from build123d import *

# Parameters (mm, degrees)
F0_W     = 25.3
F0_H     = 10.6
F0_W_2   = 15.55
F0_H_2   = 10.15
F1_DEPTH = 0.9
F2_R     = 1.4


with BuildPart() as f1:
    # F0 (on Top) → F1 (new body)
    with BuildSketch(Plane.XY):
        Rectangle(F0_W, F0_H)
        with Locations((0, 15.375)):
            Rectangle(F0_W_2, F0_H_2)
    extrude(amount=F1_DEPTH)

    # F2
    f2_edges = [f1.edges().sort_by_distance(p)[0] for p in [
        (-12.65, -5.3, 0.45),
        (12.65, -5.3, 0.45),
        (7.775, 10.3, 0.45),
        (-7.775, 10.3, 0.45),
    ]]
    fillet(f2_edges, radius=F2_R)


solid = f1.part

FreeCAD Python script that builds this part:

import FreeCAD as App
import Part
import Sketcher
from FreeCAD import Vector


def edges_at(feature, points):
    """Names of the edges that pass closest to the given points."""
    edges = feature.Shape.Edges
    near = lambda p: min(range(len(edges)), key=lambda i: edges[i].distToShape(Part.Vertex(*p))[0])
    return sorted({f"Edge{near(p) + 1}" for p in points})


def add_polygon(sketch, points):
    """Adds a closed chain of lines whose ends are joined by coincident constraints."""
    first, n = sketch.GeometryCount, len(points)
    for a, b in zip(points, points[1:] + points[:1]):
        sketch.addGeometry(Part.LineSegment(App.Vector(*a, 0), App.Vector(*b, 0)), False)
    for i in range(n):
        sketch.addConstraint(Sketcher.Constraint("Coincident", first + i, 2, first + (i + 1) % n, 1))

doc = App.newDocument("Part")
params = doc.addObject("Spreadsheet::Sheet", "Params")
for row, (alias, value) in enumerate([
    ("sketch1_width", "25.3 mm"),
    ("sketch1_height", "10.6 mm"),
    ("sketch1_width2", "15.55 mm"),
    ("sketch1_height2", "10.15 mm"),
    ("pad1_length", "0.9 mm"),
    ("fillet_radius", "1.4 mm"),
], start=1):
    params.set(f"A{row}", alias)
    params.set(f"B{row}", "=" + value)
    params.setAlias(f"B{row}", alias)

body = doc.addObject("PartDesign::Body", "Body")
body.AllowCompound = True

sketch1 = body.newObject("Sketcher::SketchObject", "Sketch")
sketch1.AttachmentSupport = (doc.getObject("XY_Plane"), [""])
sketch1.MapMode = "FlatFace"
add_polygon(sketch1, [(-13, 5), (-13, -5), (13, -5), (13, 5)])
add_polygon(sketch1, [(-8, 20), (-8, 10), (8, 10), (8, 20)])
sketch1.addConstraint(Sketcher.Constraint("Vertical", 0))
sketch1.addConstraint(Sketcher.Constraint("Horizontal", 1))
sketch1.addConstraint(Sketcher.Constraint("Vertical", 2))
sketch1.addConstraint(Sketcher.Constraint("Horizontal", 3))
sketch1.addConstraint(Sketcher.Constraint("Vertical", 4))
sketch1.addConstraint(Sketcher.Constraint("Horizontal", 5))
sketch1.addConstraint(Sketcher.Constraint("Vertical", 6))
sketch1.addConstraint(Sketcher.Constraint("Horizontal", 7))
sketch1.addConstraint(Sketcher.Constraint("Symmetric", 0, 2, 2, 2, -1, 1))
sketch1.addConstraint(Sketcher.Constraint("DistanceX", 1, 1, 1, 2, 25.3))
sketch1.addConstraint(Sketcher.Constraint("DistanceY", 0, 2, 0, 1, 10.6))
sketch1.addConstraint(Sketcher.Constraint("DistanceY", 3, 2, 4, 2, 5.0))
sketch1.addConstraint(Sketcher.Constraint("DistanceX", 5, 1, 5, 2, 15.55))
sketch1.addConstraint(Sketcher.Constraint("DistanceY", 4, 2, 4, 1, 10.15))
sketch1.addConstraint(Sketcher.Constraint("DistanceX", 4, 2, -1, 1, 7.775))
sketch1.setExpression("Constraints[17]", "Params.sketch1_width")
sketch1.setExpression("Constraints[18]", "Params.sketch1_height")
sketch1.setExpression("Constraints[20]", "Params.sketch1_width2")
sketch1.setExpression("Constraints[21]", "Params.sketch1_height2")
pad1 = body.newObject("PartDesign::Pad", "Pad")
pad1.Profile = sketch1
pad1.setExpression("Length", "Params.pad1_length")
doc.recompute()

fillet = body.newObject("PartDesign::Fillet", "Fillet")
fillet.Base = (pad1, edges_at(pad1, [
    (-12.65, -5.3, 0.45),
    (12.65, -5.3, 0.45),
    (7.775, 10.3, 0.45),
    (-7.775, 10.3, 0.45),
]))
fillet.setExpression("Radius", "Params.fillet_radius")

doc.recompute()
